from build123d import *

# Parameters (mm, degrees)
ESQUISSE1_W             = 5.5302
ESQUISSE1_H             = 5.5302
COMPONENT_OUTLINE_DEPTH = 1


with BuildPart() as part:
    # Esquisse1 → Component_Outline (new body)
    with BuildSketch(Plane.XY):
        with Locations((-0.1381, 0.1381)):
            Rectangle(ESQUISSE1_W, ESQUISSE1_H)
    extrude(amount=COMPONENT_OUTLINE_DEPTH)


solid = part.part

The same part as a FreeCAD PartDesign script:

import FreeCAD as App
import Part
import Sketcher

V = App.Vector
Q = App.Units.Quantity


def add_polygon(sketch, points):
    """Adds a closed chain of lines whose ends are joined by coincident constraints."""
    first, n = sketch.GeometryCount, len(points)
    for a, b in zip(points, points[1:] + points[:1]):
        sketch.addGeometry(Part.LineSegment(App.Vector(*a, 0), App.Vector(*b, 0)), False)
    for i in range(n):
        sketch.addConstraint(Sketcher.Constraint("Coincident", first + i, 2, first + (i + 1) % n, 1))

doc = App.newDocument("Part")
body = doc.addObject("PartDesign::Body", "Body")

# Sketch on XY plane
sketch1 = body.newObject("Sketcher::SketchObject", "Sketch")
sketch1.AttachmentSupport = (doc.getObject("XY_Plane"), [""])
sketch1.MapMode = "FlatFace"
add_polygon(sketch1, [(-3, 3), (-3, -3), (3, -3), (3, 3)])  # lines 0-3
sketch1.addConstraint([
    Sketcher.Constraint("Vertical", 0),
    Sketcher.Constraint("Horizontal", 1),
    Sketcher.Constraint("Vertical", 2),
    Sketcher.Constraint("Horizontal", 3),
    Sketcher.Constraint("Equal", 3, 0),
    Sketcher.Constraint("DistanceX", 1, 1, 1, 2, Q("5.5302 mm")),
    Sketcher.Constraint("DistanceY", 0, 2, -1, 1, Q("2.627 mm")),
    Sketcher.Constraint("DistanceX", -1, 1, 1, 2, Q("2.627 mm")),
])
pad1 = body.newObject("PartDesign::Pad", "Pad")
pad1.Profile = sketch1
pad1.Length = 1

doc.recompute()
